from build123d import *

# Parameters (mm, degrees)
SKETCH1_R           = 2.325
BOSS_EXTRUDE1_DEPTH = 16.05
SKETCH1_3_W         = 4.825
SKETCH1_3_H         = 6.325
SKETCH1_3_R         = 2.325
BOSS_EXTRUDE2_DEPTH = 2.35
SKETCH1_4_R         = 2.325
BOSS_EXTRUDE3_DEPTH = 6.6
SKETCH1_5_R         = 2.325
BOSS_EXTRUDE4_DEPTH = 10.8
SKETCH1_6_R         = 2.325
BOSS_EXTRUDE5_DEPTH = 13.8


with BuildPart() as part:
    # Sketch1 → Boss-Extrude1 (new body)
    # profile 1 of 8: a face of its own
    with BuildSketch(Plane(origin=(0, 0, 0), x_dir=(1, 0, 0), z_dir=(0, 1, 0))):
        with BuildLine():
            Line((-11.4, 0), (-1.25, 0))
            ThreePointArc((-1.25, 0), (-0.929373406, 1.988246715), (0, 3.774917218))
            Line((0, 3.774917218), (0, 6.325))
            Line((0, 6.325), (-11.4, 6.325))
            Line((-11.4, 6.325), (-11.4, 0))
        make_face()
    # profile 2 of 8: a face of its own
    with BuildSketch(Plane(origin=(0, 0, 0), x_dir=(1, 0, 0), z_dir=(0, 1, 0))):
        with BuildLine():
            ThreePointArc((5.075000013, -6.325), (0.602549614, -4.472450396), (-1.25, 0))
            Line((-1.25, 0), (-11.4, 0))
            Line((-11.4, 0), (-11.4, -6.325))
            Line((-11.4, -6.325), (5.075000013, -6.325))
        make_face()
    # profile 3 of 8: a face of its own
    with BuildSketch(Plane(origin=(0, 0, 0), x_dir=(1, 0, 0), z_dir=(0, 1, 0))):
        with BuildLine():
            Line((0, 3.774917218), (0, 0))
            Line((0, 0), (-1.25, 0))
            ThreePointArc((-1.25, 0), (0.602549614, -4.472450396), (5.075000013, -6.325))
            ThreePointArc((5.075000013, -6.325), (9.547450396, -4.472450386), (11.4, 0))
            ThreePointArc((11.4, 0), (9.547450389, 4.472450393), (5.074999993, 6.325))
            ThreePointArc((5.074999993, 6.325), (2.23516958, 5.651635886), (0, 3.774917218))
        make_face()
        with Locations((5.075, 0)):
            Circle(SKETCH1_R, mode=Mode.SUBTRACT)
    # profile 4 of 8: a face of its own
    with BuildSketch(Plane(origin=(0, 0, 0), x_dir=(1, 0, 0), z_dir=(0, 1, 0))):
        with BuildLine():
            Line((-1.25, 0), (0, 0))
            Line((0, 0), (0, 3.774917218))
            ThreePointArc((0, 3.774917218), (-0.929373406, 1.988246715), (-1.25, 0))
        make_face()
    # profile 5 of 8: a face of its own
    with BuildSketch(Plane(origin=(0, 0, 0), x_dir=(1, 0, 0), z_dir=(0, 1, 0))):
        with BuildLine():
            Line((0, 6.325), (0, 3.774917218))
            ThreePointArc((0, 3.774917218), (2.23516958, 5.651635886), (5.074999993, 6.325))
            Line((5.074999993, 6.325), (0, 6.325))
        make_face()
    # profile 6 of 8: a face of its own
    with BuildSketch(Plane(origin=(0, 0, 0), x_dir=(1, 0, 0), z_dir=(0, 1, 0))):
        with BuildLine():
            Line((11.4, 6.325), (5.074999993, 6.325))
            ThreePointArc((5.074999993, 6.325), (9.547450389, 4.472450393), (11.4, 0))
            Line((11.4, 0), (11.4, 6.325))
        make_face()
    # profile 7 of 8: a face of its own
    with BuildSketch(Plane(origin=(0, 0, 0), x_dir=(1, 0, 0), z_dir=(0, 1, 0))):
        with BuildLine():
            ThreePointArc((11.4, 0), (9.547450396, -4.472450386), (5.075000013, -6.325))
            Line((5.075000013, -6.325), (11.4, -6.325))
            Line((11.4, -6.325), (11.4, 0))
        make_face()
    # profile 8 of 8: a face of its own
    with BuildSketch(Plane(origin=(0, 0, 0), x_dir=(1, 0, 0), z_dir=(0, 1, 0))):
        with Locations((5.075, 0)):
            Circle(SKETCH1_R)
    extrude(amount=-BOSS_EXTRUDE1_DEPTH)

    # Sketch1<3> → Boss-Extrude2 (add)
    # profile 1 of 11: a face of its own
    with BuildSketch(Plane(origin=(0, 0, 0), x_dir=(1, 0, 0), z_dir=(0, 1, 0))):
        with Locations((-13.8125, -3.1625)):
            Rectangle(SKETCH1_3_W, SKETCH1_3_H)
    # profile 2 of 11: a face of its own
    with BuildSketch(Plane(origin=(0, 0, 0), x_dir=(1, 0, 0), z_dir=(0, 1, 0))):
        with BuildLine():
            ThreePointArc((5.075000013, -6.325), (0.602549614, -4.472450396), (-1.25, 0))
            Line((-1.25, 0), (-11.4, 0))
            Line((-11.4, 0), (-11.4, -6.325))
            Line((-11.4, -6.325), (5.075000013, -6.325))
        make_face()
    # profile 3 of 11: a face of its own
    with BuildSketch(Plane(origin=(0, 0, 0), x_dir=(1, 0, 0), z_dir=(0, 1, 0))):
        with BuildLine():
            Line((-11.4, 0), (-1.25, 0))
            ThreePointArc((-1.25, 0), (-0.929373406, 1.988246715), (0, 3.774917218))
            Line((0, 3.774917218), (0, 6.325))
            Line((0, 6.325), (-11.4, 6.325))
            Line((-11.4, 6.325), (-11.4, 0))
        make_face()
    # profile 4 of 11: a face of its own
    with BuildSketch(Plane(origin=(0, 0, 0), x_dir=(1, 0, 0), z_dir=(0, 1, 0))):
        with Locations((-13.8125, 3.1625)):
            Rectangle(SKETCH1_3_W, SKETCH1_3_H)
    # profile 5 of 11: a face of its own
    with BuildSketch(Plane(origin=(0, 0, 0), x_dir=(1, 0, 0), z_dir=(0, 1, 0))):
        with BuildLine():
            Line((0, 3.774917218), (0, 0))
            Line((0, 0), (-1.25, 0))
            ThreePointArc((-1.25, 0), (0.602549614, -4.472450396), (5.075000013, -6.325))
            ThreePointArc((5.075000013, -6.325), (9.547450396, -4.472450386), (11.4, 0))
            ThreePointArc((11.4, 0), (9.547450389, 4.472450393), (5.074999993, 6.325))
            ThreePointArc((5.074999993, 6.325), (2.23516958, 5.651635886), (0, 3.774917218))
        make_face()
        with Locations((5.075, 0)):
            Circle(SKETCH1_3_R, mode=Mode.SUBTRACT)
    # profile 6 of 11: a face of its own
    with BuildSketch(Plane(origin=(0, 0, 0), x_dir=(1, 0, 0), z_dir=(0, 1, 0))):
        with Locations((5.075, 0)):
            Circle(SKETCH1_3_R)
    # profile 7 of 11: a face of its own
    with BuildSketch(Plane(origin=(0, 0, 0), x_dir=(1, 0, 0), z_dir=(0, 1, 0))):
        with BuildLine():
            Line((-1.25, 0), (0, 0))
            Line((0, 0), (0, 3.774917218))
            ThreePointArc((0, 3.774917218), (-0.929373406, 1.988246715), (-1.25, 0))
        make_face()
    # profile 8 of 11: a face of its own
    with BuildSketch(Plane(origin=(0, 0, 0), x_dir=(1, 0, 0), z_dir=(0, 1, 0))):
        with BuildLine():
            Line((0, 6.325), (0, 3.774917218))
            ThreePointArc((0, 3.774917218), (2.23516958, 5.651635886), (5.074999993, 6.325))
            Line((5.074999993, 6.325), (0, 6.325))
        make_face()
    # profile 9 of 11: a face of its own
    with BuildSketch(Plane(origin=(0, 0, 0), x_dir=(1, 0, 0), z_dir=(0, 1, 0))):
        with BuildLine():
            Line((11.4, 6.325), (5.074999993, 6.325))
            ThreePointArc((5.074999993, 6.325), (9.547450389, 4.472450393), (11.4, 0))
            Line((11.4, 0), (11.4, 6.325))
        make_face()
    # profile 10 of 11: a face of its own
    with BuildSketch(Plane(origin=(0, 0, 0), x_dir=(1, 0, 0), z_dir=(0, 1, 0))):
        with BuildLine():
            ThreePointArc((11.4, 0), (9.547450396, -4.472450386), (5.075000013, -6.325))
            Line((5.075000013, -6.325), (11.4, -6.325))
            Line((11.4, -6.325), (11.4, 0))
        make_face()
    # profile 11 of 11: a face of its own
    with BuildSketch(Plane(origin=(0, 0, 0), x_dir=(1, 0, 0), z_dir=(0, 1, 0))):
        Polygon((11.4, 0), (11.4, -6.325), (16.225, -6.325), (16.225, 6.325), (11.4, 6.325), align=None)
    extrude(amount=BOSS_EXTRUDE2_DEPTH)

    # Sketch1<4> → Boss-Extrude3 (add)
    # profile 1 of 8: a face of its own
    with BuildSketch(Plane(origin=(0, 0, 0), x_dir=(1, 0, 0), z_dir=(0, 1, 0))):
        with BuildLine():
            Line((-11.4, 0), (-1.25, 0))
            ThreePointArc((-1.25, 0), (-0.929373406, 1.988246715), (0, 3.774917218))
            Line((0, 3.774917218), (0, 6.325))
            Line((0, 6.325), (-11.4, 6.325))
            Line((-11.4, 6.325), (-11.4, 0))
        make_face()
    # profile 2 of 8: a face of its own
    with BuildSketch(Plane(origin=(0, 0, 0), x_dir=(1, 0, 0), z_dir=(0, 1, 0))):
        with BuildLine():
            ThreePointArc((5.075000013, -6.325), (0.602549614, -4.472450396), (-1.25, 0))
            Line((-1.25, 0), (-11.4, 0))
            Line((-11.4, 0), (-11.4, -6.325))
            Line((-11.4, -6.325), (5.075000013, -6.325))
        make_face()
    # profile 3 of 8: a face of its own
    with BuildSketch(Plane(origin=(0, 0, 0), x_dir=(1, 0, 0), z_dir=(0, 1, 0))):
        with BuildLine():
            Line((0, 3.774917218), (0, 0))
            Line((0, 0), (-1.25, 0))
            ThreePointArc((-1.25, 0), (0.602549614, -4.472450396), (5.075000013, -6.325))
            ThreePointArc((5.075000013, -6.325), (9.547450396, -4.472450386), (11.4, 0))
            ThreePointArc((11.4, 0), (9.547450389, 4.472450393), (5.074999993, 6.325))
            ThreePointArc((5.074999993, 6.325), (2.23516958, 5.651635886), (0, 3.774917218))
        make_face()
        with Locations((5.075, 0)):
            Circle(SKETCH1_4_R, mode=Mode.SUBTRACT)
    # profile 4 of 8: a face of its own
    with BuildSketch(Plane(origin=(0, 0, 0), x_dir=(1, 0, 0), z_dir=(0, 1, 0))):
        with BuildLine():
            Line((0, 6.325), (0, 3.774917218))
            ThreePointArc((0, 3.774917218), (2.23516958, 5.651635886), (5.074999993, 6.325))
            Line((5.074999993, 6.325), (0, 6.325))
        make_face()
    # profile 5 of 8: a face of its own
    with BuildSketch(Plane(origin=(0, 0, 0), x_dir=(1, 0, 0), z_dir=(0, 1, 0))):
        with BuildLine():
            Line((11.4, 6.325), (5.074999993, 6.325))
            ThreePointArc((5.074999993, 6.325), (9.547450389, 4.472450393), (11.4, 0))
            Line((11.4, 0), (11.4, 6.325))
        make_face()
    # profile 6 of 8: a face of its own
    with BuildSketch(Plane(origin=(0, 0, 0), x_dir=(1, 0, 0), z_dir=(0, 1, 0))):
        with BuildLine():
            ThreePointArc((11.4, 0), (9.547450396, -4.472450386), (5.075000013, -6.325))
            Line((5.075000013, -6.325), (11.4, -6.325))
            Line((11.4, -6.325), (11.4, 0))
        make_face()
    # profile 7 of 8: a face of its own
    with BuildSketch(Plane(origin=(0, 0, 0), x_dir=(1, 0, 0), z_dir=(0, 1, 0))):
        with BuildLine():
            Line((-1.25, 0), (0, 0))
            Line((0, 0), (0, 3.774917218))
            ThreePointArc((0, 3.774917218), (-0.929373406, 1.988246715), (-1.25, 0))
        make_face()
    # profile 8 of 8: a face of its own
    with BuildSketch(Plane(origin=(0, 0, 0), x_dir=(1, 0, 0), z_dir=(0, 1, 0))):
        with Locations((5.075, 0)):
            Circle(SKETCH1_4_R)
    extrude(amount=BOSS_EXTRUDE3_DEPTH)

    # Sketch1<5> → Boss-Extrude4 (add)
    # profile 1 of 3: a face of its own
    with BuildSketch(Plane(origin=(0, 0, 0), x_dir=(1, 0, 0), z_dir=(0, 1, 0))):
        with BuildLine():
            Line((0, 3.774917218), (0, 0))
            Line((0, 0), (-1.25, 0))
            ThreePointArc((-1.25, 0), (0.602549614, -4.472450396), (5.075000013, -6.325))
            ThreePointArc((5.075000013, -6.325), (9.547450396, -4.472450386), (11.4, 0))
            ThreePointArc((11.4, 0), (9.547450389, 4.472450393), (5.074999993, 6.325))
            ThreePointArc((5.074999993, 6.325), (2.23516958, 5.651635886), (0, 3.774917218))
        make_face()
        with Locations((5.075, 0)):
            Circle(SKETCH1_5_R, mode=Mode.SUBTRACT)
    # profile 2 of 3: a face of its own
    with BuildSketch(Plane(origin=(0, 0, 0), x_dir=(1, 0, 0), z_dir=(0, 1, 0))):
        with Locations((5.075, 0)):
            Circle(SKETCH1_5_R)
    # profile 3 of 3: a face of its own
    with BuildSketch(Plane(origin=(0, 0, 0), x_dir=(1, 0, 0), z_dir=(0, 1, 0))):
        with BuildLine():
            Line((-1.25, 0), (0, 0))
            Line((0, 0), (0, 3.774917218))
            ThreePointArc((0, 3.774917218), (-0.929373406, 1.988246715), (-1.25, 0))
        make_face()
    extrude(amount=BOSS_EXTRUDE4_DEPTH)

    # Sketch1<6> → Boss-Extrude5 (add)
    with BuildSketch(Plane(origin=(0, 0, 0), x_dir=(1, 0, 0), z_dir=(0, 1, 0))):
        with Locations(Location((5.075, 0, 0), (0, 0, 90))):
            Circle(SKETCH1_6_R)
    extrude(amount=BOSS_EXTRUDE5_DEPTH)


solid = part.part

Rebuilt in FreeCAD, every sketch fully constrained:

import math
import FreeCAD as App
import Part
import Sketcher

V = App.Vector

doc = App.newDocument("Part")
body = doc.addObject("PartDesign::Body", "Body")

# Sketch on XZ plane
sketch1 = body.newObject("Sketcher::SketchObject", "Sketch")
sketch1.AttachmentSupport = (doc.getObject("XZ_Plane"), [""])
sketch1.MapMode = "FlatFace"
sketch1.addGeometry([
    Part.LineSegment(V(-11, -6, 0), V(-11, 6, 0)),
    Part.LineSegment(V(-11, 6, 0), V(11, 6, 0)),
    Part.LineSegment(V(11, 6, 0), V(11, -6, 0)),
    Part.LineSegment(V(11, -6, 0), V(-11, -6, 0)),
], False)
sketch1.addConstraint([
    Sketcher.Constraint("Coincident", 0, 2, 1, 1),
    Sketcher.Constraint("Coincident", 1, 2, 2, 1),
    Sketcher.Constraint("Coincident", 2, 2, 3, 1),
    Sketcher.Constraint("Coincident", 3, 2, 0, 1),
    Sketcher.Constraint("Vertical", 0),
    Sketcher.Constraint("Horizontal", 1),
    Sketcher.Constraint("Vertical", 2),
    Sketcher.Constraint("Horizontal", 3),
    Sketcher.Constraint("Symmetric", 0, 2, 2, 2, -1, 1),
    Sketcher.Constraint("DistanceX", 1, 1, 1, 2, 22.8),
    Sketcher.Constraint("DistanceY", 0, 1, 0, 2, 12.65),
])
pad1 = body.newObject("PartDesign::Pad", "Pad")
pad1.Profile = sketch1
pad1.Length = 16.05

# Sketch on XZ plane
sketch2 = body.newObject("Sketcher::SketchObject", "Sketch001")
sketch2.AttachmentSupport = (doc.getObject("XZ_Plane"), [""])
sketch2.MapMode = "FlatFace"
sketch2.addGeometry([
    Part.LineSegment(V(-16, 6, 0), V(16, 6, 0)),
    Part.LineSegment(V(16, 6, 0), V(16, -6, 0)),
    Part.LineSegment(V(16, -6, 0), V(-16, -6, 0)),
    Part.LineSegment(V(-16, -6, 0), V(-16, 6, 0)),
], False)
sketch2.addConstraint([
    Sketcher.Constraint("Coincident", 0, 2, 1, 1),
    Sketcher.Constraint("Coincident", 1, 2, 2, 1),
    Sketcher.Constraint("Coincident", 2, 2, 3, 1),
    Sketcher.Constraint("Coincident", 3, 2, 0, 1),
    Sketcher.Constraint("Horizontal", 0),
    Sketcher.Constraint("Vertical", 1),
    Sketcher.Constraint("Horizontal", 2),
    Sketcher.Constraint("Vertical", 3),
    Sketcher.Constraint("Symmetric", 0, 2, 2, 2, -1, 1),
    Sketcher.Constraint("DistanceX", 0, 1, 0, 2, 32.45),
    Sketcher.Constraint("DistanceY", 1, 2, 1, 1, 12.65),
])
pad2 = body.newObject("PartDesign::Pad", "Pad001")
pad2.Profile = sketch2
pad2.Length = 2.35
pad2.Reversed = True

# Sketch on XZ plane
sketch3 = body.newObject("Sketcher::SketchObject", "Sketch002")
sketch3.AttachmentSupport = (doc.getObject("XZ_Plane"), [""])
sketch3.MapMode = "FlatFace"
sketch3.addGeometry([
    Part.LineSegment(V(-11, -6, 0), V(-11, 6, 0)),
    Part.LineSegment(V(-11, 6, 0), V(11, 6, 0)),
    Part.LineSegment(V(11, 6, 0), V(11, -6, 0)),
    Part.LineSegment(V(11, -6, 0), V(-11, -6, 0)),
], False)
sketch3.addConstraint([
    Sketcher.Constraint("Coincident", 0, 2, 1, 1),
    Sketcher.Constraint("Coincident", 1, 2, 2, 1),
    Sketcher.Constraint("Coincident", 2, 2, 3, 1),
    Sketcher.Constraint("Coincident", 3, 2, 0, 1),
    Sketcher.Constraint("Vertical", 0),
    Sketcher.Constraint("Horizontal", 1),
    Sketcher.Constraint("Vertical", 2),
    Sketcher.Constraint("Horizontal", 3),
    Sketcher.Constraint("Symmetric", 0, 2, 2, 2, -1, 1),
    Sketcher.Constraint("DistanceX", 1, 1, 1, 2, 22.8),
    Sketcher.Constraint("DistanceY", 0, 1, 0, 2, 12.65),
])
pad3 = body.newObject("PartDesign::Pad", "Pad002")
pad3.Profile = sketch3
pad3.Length = 6.6
pad3.Reversed = True

# Sketch on XZ plane
sketch4 = body.newObject("Sketcher::SketchObject", "Sketch003")
sketch4.AttachmentSupport = (doc.getObject("XZ_Plane"), [""])
sketch4.MapMode = "FlatFace"
sketch4.addGeometry([
    Part.ArcOfCircle(Part.Circle(V(5.1, 0, 0), V(0, 0, 1), 6.3), math.radians(-143), math.radians(-90)),  # 0
    Part.ArcOfCircle(Part.Circle(V(5.1, 0, 0), V(0, 0, 1), 6.3), math.radians(-180), math.radians(-143)),  # 1
    Part.ArcOfCircle(Part.Circle(V(5.1, 0, 0), V(0, 0, 1), 6.3), math.radians(90), math.radians(180)),  # 2
    Part.ArcOfCircle(Part.Circle(V(5.1, 0, 0), V(0, 0, 1), 6.3), math.radians(0), math.radians(90)),  # 3
    Part.ArcOfCircle(Part.Circle(V(5.1, 0, 0), V(0, 0, 1), 6.3), math.radians(-90), math.radians(0)),  # 4
], False)
sketch4.addConstraint([
    Sketcher.Constraint("Tangent", 0, 1, 1, 2),
    Sketcher.Constraint("Tangent", 1, 1, 2, 2),
    Sketcher.Constraint("Tangent", 2, 1, 3, 2),
    Sketcher.Constraint("Tangent", 3, 1, 4, 2),
    Sketcher.Constraint("Tangent", 4, 1, 0, 2),
    Sketcher.Constraint("Coincident", 2, 3, 0, 3),
    Sketcher.Constraint("Symmetric", 2, 1, 4, 1, -1),
    Sketcher.Constraint("PointOnObject", 0, 1, -2),
    Sketcher.Constraint("PointOnObject", 1, 1, -1),
    Sketcher.Constraint("PointOnObject", 3, 1, -1),
    Sketcher.Constraint("Vertical", 4, 3, 2, 1),
    Sketcher.Constraint("Radius", 0, 6.325),
    Sketcher.Constraint("DistanceX", -1, 1, 3, 1, 11.4),
])
pad4 = body.newObject("PartDesign::Pad", "Pad003")
pad4.Profile = sketch4
pad4.Length = 10.8
pad4.Reversed = True

# Sketch on XZ plane
sketch5 = body.newObject("Sketcher::SketchObject", "Sketch004")
sketch5.AttachmentSupport = (doc.getObject("XZ_Plane"), [""])
sketch5.MapMode = "FlatFace"
sketch5.addGeometry(Part.Circle(V(5.1, 0, 0), V(0, 0, 1), 2.3), False)
sketch5.addConstraint([
    Sketcher.Constraint("PointOnObject", 0, 3, -1),
    Sketcher.Constraint("Diameter", 0, 4.65),
    Sketcher.Constraint("DistanceX", -1, 1, 0, 3, 5.075),
])
pad5 = body.newObject("PartDesign::Pad", "Pad004")
pad5.Profile = sketch5
pad5.Length = 13.8
pad5.Reversed = True

doc.recompute()
